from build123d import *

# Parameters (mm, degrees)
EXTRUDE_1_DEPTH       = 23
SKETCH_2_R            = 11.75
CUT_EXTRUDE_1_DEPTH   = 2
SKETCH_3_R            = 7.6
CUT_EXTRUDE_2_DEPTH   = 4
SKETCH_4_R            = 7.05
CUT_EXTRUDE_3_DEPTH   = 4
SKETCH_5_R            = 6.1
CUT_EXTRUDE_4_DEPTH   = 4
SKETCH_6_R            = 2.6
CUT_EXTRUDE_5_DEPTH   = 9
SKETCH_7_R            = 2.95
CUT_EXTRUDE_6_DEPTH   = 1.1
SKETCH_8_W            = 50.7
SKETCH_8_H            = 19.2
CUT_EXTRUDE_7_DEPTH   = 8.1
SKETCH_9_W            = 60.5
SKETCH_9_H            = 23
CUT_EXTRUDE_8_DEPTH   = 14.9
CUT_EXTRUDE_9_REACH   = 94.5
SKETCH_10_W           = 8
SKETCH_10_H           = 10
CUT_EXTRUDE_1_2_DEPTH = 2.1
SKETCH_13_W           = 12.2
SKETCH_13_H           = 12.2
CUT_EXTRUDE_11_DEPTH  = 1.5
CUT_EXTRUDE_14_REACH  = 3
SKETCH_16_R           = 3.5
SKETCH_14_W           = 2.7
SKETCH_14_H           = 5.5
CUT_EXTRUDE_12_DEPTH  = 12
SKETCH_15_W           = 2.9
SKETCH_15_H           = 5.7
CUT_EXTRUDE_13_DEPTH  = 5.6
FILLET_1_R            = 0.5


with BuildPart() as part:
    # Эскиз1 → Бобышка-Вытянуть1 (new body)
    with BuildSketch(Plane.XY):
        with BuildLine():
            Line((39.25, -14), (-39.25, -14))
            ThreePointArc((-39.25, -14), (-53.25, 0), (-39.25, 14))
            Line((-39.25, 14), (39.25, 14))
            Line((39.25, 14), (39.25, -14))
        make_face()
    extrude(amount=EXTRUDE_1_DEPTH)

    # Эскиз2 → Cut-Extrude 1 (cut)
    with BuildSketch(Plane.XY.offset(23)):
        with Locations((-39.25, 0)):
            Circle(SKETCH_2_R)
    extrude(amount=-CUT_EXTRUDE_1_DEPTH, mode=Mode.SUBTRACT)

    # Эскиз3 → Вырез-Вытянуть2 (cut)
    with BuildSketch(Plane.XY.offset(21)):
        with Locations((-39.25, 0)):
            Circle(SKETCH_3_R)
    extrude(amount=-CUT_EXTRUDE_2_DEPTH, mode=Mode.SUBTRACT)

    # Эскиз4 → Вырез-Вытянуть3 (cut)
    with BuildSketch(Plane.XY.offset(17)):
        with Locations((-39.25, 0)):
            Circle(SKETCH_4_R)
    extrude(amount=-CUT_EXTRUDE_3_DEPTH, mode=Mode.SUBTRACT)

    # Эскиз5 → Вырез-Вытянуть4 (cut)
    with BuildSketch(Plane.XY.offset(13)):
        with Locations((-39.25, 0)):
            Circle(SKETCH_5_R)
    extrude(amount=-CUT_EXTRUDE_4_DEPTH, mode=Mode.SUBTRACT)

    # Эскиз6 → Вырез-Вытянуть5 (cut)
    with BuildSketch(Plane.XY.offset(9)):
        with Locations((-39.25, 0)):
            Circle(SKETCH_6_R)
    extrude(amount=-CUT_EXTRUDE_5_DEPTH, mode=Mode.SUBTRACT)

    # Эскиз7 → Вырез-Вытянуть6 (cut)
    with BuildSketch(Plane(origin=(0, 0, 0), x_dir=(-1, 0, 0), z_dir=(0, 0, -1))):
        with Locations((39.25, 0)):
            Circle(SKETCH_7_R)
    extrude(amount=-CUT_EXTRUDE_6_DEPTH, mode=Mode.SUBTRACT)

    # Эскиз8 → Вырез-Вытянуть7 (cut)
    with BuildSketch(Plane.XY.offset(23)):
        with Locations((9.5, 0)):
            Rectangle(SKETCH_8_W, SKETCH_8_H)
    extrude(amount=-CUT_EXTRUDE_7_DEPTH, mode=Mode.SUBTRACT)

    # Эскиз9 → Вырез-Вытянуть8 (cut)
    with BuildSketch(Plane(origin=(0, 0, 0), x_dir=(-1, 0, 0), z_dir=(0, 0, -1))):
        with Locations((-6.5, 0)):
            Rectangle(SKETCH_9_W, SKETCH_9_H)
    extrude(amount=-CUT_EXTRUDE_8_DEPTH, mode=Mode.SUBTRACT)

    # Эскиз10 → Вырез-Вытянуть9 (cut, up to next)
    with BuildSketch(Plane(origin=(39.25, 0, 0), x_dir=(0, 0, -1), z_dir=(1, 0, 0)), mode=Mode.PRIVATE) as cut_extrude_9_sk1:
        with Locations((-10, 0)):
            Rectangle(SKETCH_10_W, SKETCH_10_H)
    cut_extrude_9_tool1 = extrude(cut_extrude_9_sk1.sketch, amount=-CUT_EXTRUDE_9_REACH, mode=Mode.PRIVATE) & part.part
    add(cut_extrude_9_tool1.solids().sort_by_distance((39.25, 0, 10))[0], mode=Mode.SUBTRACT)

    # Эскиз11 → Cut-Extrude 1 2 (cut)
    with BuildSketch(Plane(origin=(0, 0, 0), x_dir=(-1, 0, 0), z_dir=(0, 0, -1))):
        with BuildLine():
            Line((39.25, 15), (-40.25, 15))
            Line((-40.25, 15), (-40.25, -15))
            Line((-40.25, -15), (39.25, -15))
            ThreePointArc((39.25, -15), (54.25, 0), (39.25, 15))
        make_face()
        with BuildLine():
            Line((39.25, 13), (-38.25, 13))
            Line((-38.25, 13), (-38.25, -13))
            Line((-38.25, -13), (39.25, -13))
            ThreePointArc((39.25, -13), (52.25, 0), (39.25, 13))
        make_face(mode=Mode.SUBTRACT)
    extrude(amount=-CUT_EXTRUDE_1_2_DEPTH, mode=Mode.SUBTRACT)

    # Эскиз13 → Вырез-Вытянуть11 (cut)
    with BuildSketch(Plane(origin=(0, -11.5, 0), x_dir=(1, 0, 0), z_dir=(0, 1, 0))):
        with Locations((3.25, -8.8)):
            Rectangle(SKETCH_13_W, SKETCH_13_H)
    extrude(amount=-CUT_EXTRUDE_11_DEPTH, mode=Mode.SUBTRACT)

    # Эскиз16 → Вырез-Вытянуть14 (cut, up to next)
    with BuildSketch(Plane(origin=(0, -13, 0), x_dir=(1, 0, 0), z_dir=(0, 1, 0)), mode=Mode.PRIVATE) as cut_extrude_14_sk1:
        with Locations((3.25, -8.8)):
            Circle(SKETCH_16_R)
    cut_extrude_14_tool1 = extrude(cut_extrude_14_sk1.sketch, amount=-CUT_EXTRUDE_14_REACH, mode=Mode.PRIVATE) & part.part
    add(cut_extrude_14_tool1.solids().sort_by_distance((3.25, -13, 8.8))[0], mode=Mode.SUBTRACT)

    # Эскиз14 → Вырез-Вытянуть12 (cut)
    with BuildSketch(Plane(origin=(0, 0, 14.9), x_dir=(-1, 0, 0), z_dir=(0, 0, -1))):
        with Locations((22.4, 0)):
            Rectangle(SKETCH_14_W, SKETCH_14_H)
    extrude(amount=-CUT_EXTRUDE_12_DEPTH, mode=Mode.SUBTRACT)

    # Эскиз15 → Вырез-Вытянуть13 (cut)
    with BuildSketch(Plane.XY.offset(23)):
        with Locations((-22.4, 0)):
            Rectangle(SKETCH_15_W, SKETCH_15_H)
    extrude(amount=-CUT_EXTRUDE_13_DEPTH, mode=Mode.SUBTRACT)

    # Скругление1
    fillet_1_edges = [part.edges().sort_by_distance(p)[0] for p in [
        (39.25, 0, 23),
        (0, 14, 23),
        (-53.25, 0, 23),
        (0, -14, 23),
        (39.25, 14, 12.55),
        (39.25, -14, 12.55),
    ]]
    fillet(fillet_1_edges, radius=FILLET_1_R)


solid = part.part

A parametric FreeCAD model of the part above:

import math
import FreeCAD as App
import Part
import Sketcher
Q = App.Units.Quantity


def edges_at(feature, points):
    """Names of the edges that pass closest to the given points."""
    edges = feature.Shape.Edges
    near = lambda p: min(range(len(edges)), key=lambda i: edges[i].distToShape(Part.Vertex(*p))[0])
    return sorted({f"Edge{near(p) + 1}" for p in points})


def add_polygon(sketch, points):
    """Adds a closed chain of lines whose ends are joined by coincident constraints."""
    first, n = sketch.GeometryCount, len(points)
    for a, b in zip(points, points[1:] + points[:1]):
        sketch.addGeometry(Part.LineSegment(App.Vector(*a, 0), App.Vector(*b, 0)), False)
    for i in range(n):
        sketch.addConstraint(Sketcher.Constraint("Coincident", first + i, 2, first + (i + 1) % n, 1))

doc = App.newDocument("Part")
params = doc.addObject("Spreadsheet::Sheet", "Params")
for row, (alias, value) in enumerate([
    ("sketch1_radius", "14 mm"),
    ("sketch1_width", "78.5 mm"),
    ("pad1_length", "23 mm"),
    ("sketch2_diameter", "23.5 mm"),
    ("pocket1_length", "2 mm"),
    ("sketch3_diameter", "15.2 mm"),
    ("pocket2_length", "4 mm"),
    ("sketch4_diameter", "14.1 mm"),
    ("pocket3_length", "4 mm"),
    ("sketch5_diameter", "12.2 mm"),
    ("pocket4_length", "4 mm"),
    ("sketch6_diameter", "5.2 mm"),
    ("pocket5_length", "9 mm"),
    ("sketch7_diameter", "5.9 mm"),
    ("pocket6_length", "1.1 mm"),
    ("sketch8_width", "50.7 mm"),
    ("sketch8_height", "19.2 mm"),
    ("pocket7_length", "8.1 mm"),
    ("sketch9_height", "23 mm"),
    ("sketch9_width", "60.5 mm"),
    ("pocket8_length", "14.9 mm"),
    ("sketch10_width", "10 mm"),
    ("sketch10_height", "8 mm"),
    ("sketch11_radius", "15 mm"),
    ("sketch11_radius2", "13 mm"),
    ("sketch11_width", "79.5 mm"),
    ("sketch11_width2", "77.5 mm"),
    ("pocket10_length", "2.1 mm"),
    ("sketch12_width", "12.2 mm"),
    ("pocket11_length", "1.5 mm"),
    ("sketch13_diameter", "7 mm"),
    ("sketch14_width", "2.7 mm"),
    ("sketch14_height", "5.5 mm"),
    ("pocket13_length", "12 mm"),
    ("sketch15_width", "2.9 mm"),
    ("sketch15_height", "5.7 mm"),
    ("pocket14_length", "5.6 mm"),
    ("fillet_radius", "0.5 mm"),
], start=1):
    params.set(f"A{row}", alias)
    params.set(f"B{row}", "=" + value)
    params.setAlias(f"B{row}", alias)

body = doc.addObject("PartDesign::Body", "Body")

# Sketch on XY plane
sketch1 = body.newObject("Sketcher::SketchObject", "Sketch")
sketch1.AttachmentSupport = (doc.getObject("XY_Plane"), [""])
sketch1.MapMode = "FlatFace"
sketch1.addGeometry([
    Part.LineSegment(App.Vector(-39, -14, 0), App.Vector(39, -14, 0)),
    Part.LineSegment(App.Vector(39, -14, 0), App.Vector(39, 14, 0)),
    Part.LineSegment(App.Vector(39, 14, 0), App.Vector(-39, 14, 0)),
    Part.ArcOfCircle(Part.Circle(App.Vector(-39, 0, 0), App.Vector(0, 0, 1), 14), math.radians(90), math.radians(270)),
], False)
sketch1.addConstraint([
    Sketcher.Constraint("Coincident", 0, 2, 1, 1),
    Sketcher.Constraint("Coincident", 1, 2, 2, 1),
    Sketcher.Constraint("Tangent", 2, 2, 3, 1),
    Sketcher.Constraint("Tangent", 3, 2, 0, 1),
    Sketcher.Constraint("Horizontal", 0),
    Sketcher.Constraint("Vertical", 1),
    Sketcher.Constraint("Horizontal", 2),
    Sketcher.Constraint("Symmetric", 0, 2, 2, 2, -1, 1),
    Sketcher.Constraint("Radius", 3, Q("14 mm")),
    Sketcher.Constraint("DistanceX", 0, 1, 0, 2, Q("78.5 mm")),
])
sketch1.setExpression("Constraints[8]", "Params.sketch1_radius")
sketch1.setExpression("Constraints[9]", "Params.sketch1_width")
pad1 = body.newObject("PartDesign::Pad", "Pad")
pad1.Profile = sketch1
pad1.setExpression("Length", "Params.pad1_length")

# Sketch on XY plane
sketch2 = body.newObject("Sketcher::SketchObject", "Sketch001")
sketch2.AttachmentSupport = (doc.getObject("XY_Plane"), [""])
sketch2.MapMode = "FlatFace"
sketch2.AttachmentOffset = App.Placement(App.Vector(0, 0, 23), App.Rotation())
sketch2.addGeometry(Part.Circle(App.Vector(-39, 0, 0), App.Vector(0, 0, 1), 12), False)
sketch2.addConstraint([
    Sketcher.Constraint("PointOnObject", 0, 3, -1),
    Sketcher.Constraint("Diameter", 0, Q("23.5 mm")),
    Sketcher.Constraint("DistanceX", 0, 3, -1, 1, Q("39.25 mm")),
])
sketch2.setExpression("Constraints[1]", "Params.sketch2_diameter")
pocket1 = body.newObject("PartDesign::Pocket", "Pocket")
pocket1.Profile = sketch2
pocket1.setExpression("Length", "Params.pocket1_length")

# Sketch on XY plane
sketch3 = body.newObject("Sketcher::SketchObject", "Sketch002")
sketch3.AttachmentSupport = (doc.getObject("XY_Plane"), [""])
sketch3.MapMode = "FlatFace"
sketch3.AttachmentOffset = App.Placement(App.Vector(0, 0, 21), App.Rotation())
sketch3.addGeometry(Part.Circle(App.Vector(-39, 0, 0), App.Vector(0, 0, 1), 8), False)
sketch3.addConstraint([
    Sketcher.Constraint("PointOnObject", 0, 3, -1),
    Sketcher.Constraint("Diameter", 0, Q("15.2 mm")),
    Sketcher.Constraint("DistanceX", 0, 3, -1, 1, Q("39.25 mm")),
])
sketch3.setExpression("Constraints[1]", "Params.sketch3_diameter")
pocket2 = body.newObject("PartDesign::Pocket", "Pocket001")
pocket2.Profile = sketch3
pocket2.setExpression("Length", "Params.pocket2_length")

# Sketch on XY plane
sketch4 = body.newObject("Sketcher::SketchObject", "Sketch003")
sketch4.AttachmentSupport = (doc.getObject("XY_Plane"), [""])
sketch4.MapMode = "FlatFace"
sketch4.AttachmentOffset = App.Placement(App.Vector(0, 0, 17), App.Rotation())
sketch4.addGeometry(Part.Circle(App.Vector(-39, 0, 0), App.Vector(0, 0, 1), 7), False)
sketch4.addConstraint([
    Sketcher.Constraint("PointOnObject", 0, 3, -1),
    Sketcher.Constraint("Diameter", 0, Q("14.1 mm")),
    Sketcher.Constraint("DistanceX", 0, 3, -1, 1, Q("39.25 mm")),
])
sketch4.setExpression("Constraints[1]", "Params.sketch4_diameter")
pocket3 = body.newObject("PartDesign::Pocket", "Pocket002")
pocket3.Profile = sketch4
pocket3.setExpression("Length", "Params.pocket3_length")

# Sketch on XY plane
sketch5 = body.newObject("Sketcher::SketchObject", "Sketch004")
sketch5.AttachmentSupport = (doc.getObject("XY_Plane"), [""])
sketch5.MapMode = "FlatFace"
sketch5.AttachmentOffset = App.Placement(App.Vector(0, 0, 13), App.Rotation())
sketch5.addGeometry(Part.Circle(App.Vector(-39, 0, 0), App.Vector(0, 0, 1), 6), False)
sketch5.addConstraint([
    Sketcher.Constraint("PointOnObject", 0, 3, -1),
    Sketcher.Constraint("Diameter", 0, Q("12.2 mm")),
    Sketcher.Constraint("DistanceX", 0, 3, -1, 1, Q("39.25 mm")),
])
sketch5.setExpression("Constraints[1]", "Params.sketch5_diameter")
pocket4 = body.newObject("PartDesign::Pocket", "Pocket003")
pocket4.Profile = sketch5
pocket4.setExpression("Length", "Params.pocket4_length")

# Sketch on XY plane
sketch6 = body.newObject("Sketcher::SketchObject", "Sketch005")
sketch6.AttachmentSupport = (doc.getObject("XY_Plane"), [""])
sketch6.MapMode = "FlatFace"
sketch6.AttachmentOffset = App.Placement(App.Vector(0, 0, 9), App.Rotation())
sketch6.addGeometry(Part.Circle(App.Vector(-39.2, 0, 0), App.Vector(0, 0, 1), 2.6), False)
sketch6.addConstraint([
    Sketcher.Constraint("PointOnObject", 0, 3, -1),
    Sketcher.Constraint("Diameter", 0, Q("5.2 mm")),
    Sketcher.Constraint("DistanceX", 0, 3, -1, 1, Q("39.25 mm")),
])
sketch6.setExpression("Constraints[1]", "Params.sketch6_diameter")
pocket5 = body.newObject("PartDesign::Pocket", "Pocket004")
pocket5.Profile = sketch6
pocket5.setExpression("Length", "Params.pocket5_length")

# Sketch on XY plane
sketch7 = body.newObject("Sketcher::SketchObject", "Sketch006")
sketch7.AttachmentSupport = (doc.getObject("XY_Plane"), [""])
sketch7.MapMode = "FlatFace"
sketch7.addGeometry(Part.Circle(App.Vector(-39.2, 0, 0), App.Vector(0, 0, 1), 3), False)
sketch7.addConstraint([
    Sketcher.Constraint("PointOnObject", 0, 3, -1),
    Sketcher.Constraint("Diameter", 0, Q("5.9 mm")),
    Sketcher.Constraint("DistanceX", 0, 3, -1, 1, Q("39.25 mm")),
])
sketch7.setExpression("Constraints[1]", "Params.sketch7_diameter")
pocket6 = body.newObject("PartDesign::Pocket", "Pocket005")
pocket6.Profile = sketch7
pocket6.setExpression("Length", "Params.pocket6_length")
pocket6.Reversed = True

# Sketch on XY plane
sketch8 = body.newObject("Sketcher::SketchObject", "Sketch007")
sketch8.AttachmentSupport = (doc.getObject("XY_Plane"), [""])
sketch8.MapMode = "FlatFace"
sketch8.AttachmentOffset = App.Placement(App.Vector(0, 0, 23), App.Rotation())
add_polygon(sketch8, [(-16, 10), (-16, -10), (35, -10), (35, 10)])  # lines 0-3
sketch8.addConstraint([
    Sketcher.Constraint("Vertical", 0),
    Sketcher.Constraint("Horizontal", 1),
    Sketcher.Constraint("Vertical", 2),
    Sketcher.Constraint("Horizontal", 3),
    Sketcher.Constraint("DistanceX", 1, 1, 1, 2, Q("50.7 mm")),
    Sketcher.Constraint("DistanceY", 0, 2, 0, 1, Q("19.2 mm")),
    Sketcher.Constraint("DistanceY", 0, 2, -1, 1, Q("9.6 mm")),
    Sketcher.Constraint("DistanceX", 0, 2, -1, 1, Q("15.85 mm")),
])
sketch8.setExpression("Constraints[8]", "Params.sketch8_width")
sketch8.setExpression("Constraints[9]", "Params.sketch8_height")
pocket7 = body.newObject("PartDesign::Pocket", "Pocket006")
pocket7.Profile = sketch8
pocket7.setExpression("Length", "Params.pocket7_length")

# Sketch on XY plane
sketch9 = body.newObject("Sketcher::SketchObject", "Sketch008")
sketch9.AttachmentSupport = (doc.getObject("XY_Plane"), [""])
sketch9.MapMode = "FlatFace"
add_polygon(sketch9, [(37, 12), (37, -12), (-24, -12), (-24, 12)])  # lines 0-3
sketch9.addConstraint([
    Sketcher.Constraint("Vertical", 0),
    Sketcher.Constraint("Horizontal", 1),
    Sketcher.Constraint("Vertical", 2),
    Sketcher.Constraint("Horizontal", 3),
    Sketcher.Constraint("DistanceY", 0, 2, 0, 1, Q("23 mm")),
    Sketcher.Constraint("DistanceX", 1, 2, 1, 1, Q("60.5 mm")),
    Sketcher.Constraint("DistanceY", 0, 2, -1, 1, Q("11.5 mm")),
    Sketcher.Constraint("DistanceX", -1, 1, 0, 2, Q("36.75 mm")),
])
sketch9.setExpression("Constraints[8]", "Params.sketch9_height")
sketch9.setExpression("Constraints[9]", "Params.sketch9_width")
pocket8 = body.newObject("PartDesign::Pocket", "Pocket007")
pocket8.Profile = sketch9
pocket8.setExpression("Length", "Params.pocket8_length")
pocket8.Reversed = True

# Sketch on YZ plane
sketch10 = body.newObject("Sketcher::SketchObject", "Sketch009")
sketch10.AttachmentSupport = (doc.getObject("YZ_Plane"), [""])
sketch10.MapMode = "FlatFace"
sketch10.AttachmentOffset = App.Placement(App.Vector(0, 0, 39.25), App.Rotation())
add_polygon(sketch10, [(5, 14), (-5, 14), (-5, 6), (5, 6)])  # lines 0-3
sketch10.addConstraint([
    Sketcher.Constraint("Horizontal", 0),
    Sketcher.Constraint("Vertical", 1),
    Sketcher.Constraint("Horizontal", 2),
    Sketcher.Constraint("Vertical", 3),
    Sketcher.Constraint("DistanceX", 0, 2, 0, 1, Q("10 mm")),
    Sketcher.Constraint("DistanceY", 1, 2, 1, 1, Q("8 mm")),
    Sketcher.Constraint("DistanceX", 0, 2, -1, 1, Q("5 mm")),
    Sketcher.Constraint("DistanceY", -1, 1, 0, 2, Q("14 mm")),
])
sketch10.setExpression("Constraints[8]", "Params.sketch10_width")
sketch10.setExpression("Constraints[9]", "Params.sketch10_height")
pocket9 = body.newObject("PartDesign::Pocket", "Pocket008")
pocket9.Profile = sketch10
pocket9.Type = "UpToFirst"

# Sketch on XY plane
sketch11 = body.newObject("Sketcher::SketchObject", "Sketch010")
sketch11.AttachmentSupport = (doc.getObject("XY_Plane"), [""])
sketch11.MapMode = "FlatFace"
sketch11.addGeometry([
    Part.LineSegment(App.Vector(-39, 15, 0), App.Vector(40, 15, 0)),  # 0
    Part.LineSegment(App.Vector(40, 15, 0), App.Vector(40, -15, 0)),  # 1
    Part.LineSegment(App.Vector(40, -15, 0), App.Vector(-39, -15, 0)),  # 2
    Part.ArcOfCircle(Part.Circle(App.Vector(-39, 0, 0), App.Vector(0, 0, 1), 15), math.radians(90), math.radians(270)),  # 3
    Part.LineSegment(App.Vector(38, 13, 0), App.Vector(-39, 13, 0)),  # 4
    Part.ArcOfCircle(Part.Circle(App.Vector(-39, 0, 0), App.Vector(0, 0, 1), 13), math.radians(90), math.radians(270)),  # 5
    Part.LineSegment(App.Vector(-39, -13, 0), App.Vector(38, -13, 0)),  # 6
    Part.LineSegment(App.Vector(38, -13, 0), App.Vector(38, 13, 0)),  # 7
], False)
sketch11.addConstraint([
    Sketcher.Constraint("Coincident", 0, 2, 1, 1),
    Sketcher.Constraint("Coincident", 1, 2, 2, 1),
    Sketcher.Constraint("Tangent", 2, 2, 3, 2),
    Sketcher.Constraint("Tangent", 3, 1, 0, 1),
    Sketcher.Constraint("Tangent", 4, 2, 5, 1),
    Sketcher.Constraint("Tangent", 5, 2, 6, 1),
    Sketcher.Constraint("Coincident", 6, 2, 7, 1),
    Sketcher.Constraint("Coincident", 7, 2, 4, 1),
    Sketcher.Constraint("Horizontal", 0),
    Sketcher.Constraint("Vertical", 1),
    Sketcher.Constraint("Horizontal", 2),
    Sketcher.Constraint("Horizontal", 4),
    Sketcher.Constraint("Horizontal", 6),
    Sketcher.Constraint("Vertical", 7),
    Sketcher.Constraint("Coincident", 5, 3, 3, 3),
    Sketcher.Constraint("PointOnObject", 3, 3, -1),
    Sketcher.Constraint("Radius", 3, Q("15 mm")),
    Sketcher.Constraint("Radius", 5, Q("13 mm")),
    Sketcher.Constraint("DistanceX", 0, 1, 0, 2, Q("79.5 mm")),
    Sketcher.Constraint("DistanceX", 4, 2, 4, 1, Q("77.5 mm")),
    Sketcher.Constraint("DistanceX", 3, 3, -1, 1, Q("39.25 mm")),
])
sketch11.setExpression("Constraints[16]", "Params.sketch11_radius")
sketch11.setExpression("Constraints[17]", "Params.sketch11_radius2")
sketch11.setExpression("Constraints[18]", "Params.sketch11_width")
sketch11.setExpression("Constraints[19]", "Params.sketch11_width2")
pocket10 = body.newObject("PartDesign::Pocket", "Pocket009")
pocket10.Profile = sketch11
pocket10.setExpression("Length", "Params.pocket10_length")
pocket10.Reversed = True

# Sketch on XZ plane
sketch12 = body.newObject("Sketcher::SketchObject", "Sketch011")
sketch12.AttachmentSupport = (doc.getObject("XZ_Plane"), [""])
sketch12.MapMode = "FlatFace"
sketch12.AttachmentOffset = App.Placement(App.Vector(0, 0, 11.5), App.Rotation())
add_polygon(sketch12, [(-3, 3), (-3, 15), (9, 15), (9, 3)])  # lines 0-3
sketch12.addConstraint([
    Sketcher.Constraint("Vertical", 0),
    Sketcher.Constraint("Horizontal", 1),
    Sketcher.Constraint("Vertical", 2),
    Sketcher.Constraint("Horizontal", 3),
    Sketcher.Constraint("Equal", 3, 0),
    Sketcher.Constraint("DistanceX", 1, 1, 1, 2, Q("12.2 mm")),
    Sketcher.Constraint("DistanceY", -1, 1, 0, 2, Q("14.9 mm")),
    Sketcher.Constraint("DistanceX", 0, 2, -1, 1, Q("2.85 mm")),
])
sketch12.setExpression("Constraints[9]", "Params.sketch12_width")
pocket11 = body.newObject("PartDesign::Pocket", "Pocket010")
pocket11.Profile = sketch12
pocket11.setExpression("Length", "Params.pocket11_length")
pocket11.Reversed = True

# Sketch on XZ plane
sketch13 = body.newObject("Sketcher::SketchObject", "Sketch012")
sketch13.AttachmentSupport = (doc.getObject("XZ_Plane"), [""])
sketch13.MapMode = "FlatFace"
sketch13.AttachmentOffset = App.Placement(App.Vector(0, 0, 13), App.Rotation())
sketch13.addGeometry(Part.Circle(App.Vector(3.2, 8.8, 0), App.Vector(0, 0, 1), 3.5), False)
sketch13.addConstraint([
    Sketcher.Constraint("Diameter", 0, Q("7 mm")),
    Sketcher.Constraint("DistanceY", -1, 1, 0, 3, Q("8.8 mm")),
    Sketcher.Constraint("DistanceX", -1, 1, 0, 3, Q("3.25 mm")),
])
sketch13.setExpression("Constraints[0]", "Params.sketch13_diameter")
pocket12 = body.newObject("PartDesign::Pocket", "Pocket011")
pocket12.Profile = sketch13
pocket12.Type = "UpToFirst"
pocket12.Reversed = True

# Sketch on XY plane
sketch14 = body.newObject("Sketcher::SketchObject", "Sketch013")
sketch14.AttachmentSupport = (doc.getObject("XY_Plane"), [""])
sketch14.MapMode = "FlatFace"
sketch14.AttachmentOffset = App.Placement(App.Vector(0, 0, 14.9), App.Rotation())
add_polygon(sketch14, [(-21.1, 2.8), (-21.1, -2.8), (-23.8, -2.8), (-23.8, 2.8)])  # lines 0-3
sketch14.addConstraint([
    Sketcher.Constraint("Vertical", 0),
    Sketcher.Constraint("Horizontal", 1),
    Sketcher.Constraint("Vertical", 2),
    Sketcher.Constraint("Horizontal", 3),
    Sketcher.Constraint("DistanceX", 1, 2, 1, 1, Q("2.7 mm")),
    Sketcher.Constraint("DistanceY", 0, 2, 0, 1, Q("5.5 mm")),
    Sketcher.Constraint("DistanceX", 0, 2, -1, 1, Q("21.05 mm")),
    Sketcher.Constraint("DistanceY", 0, 2, -1, 1, Q("2.75 mm")),
])
sketch14.setExpression("Constraints[8]", "Params.sketch14_width")
sketch14.setExpression("Constraints[9]", "Params.sketch14_height")
pocket13 = body.newObject("PartDesign::Pocket", "Pocket012")
pocket13.Profile = sketch14
pocket13.setExpression("Length", "Params.pocket13_length")
pocket13.Reversed = True

# Sketch on XY plane
sketch15 = body.newObject("Sketcher::SketchObject", "Sketch014")
sketch15.AttachmentSupport = (doc.getObject("XY_Plane"), [""])
sketch15.MapMode = "FlatFace"
sketch15.AttachmentOffset = App.Placement(App.Vector(0, 0, 23), App.Rotation())
add_polygon(sketch15, [(-23.9, 2.9), (-23.9, -2.9), (-20.9, -2.9), (-20.9, 2.9)])  # lines 0-3
sketch15.addConstraint([
    Sketcher.Constraint("Vertical", 0),
    Sketcher.Constraint("Horizontal", 1),
    Sketcher.Constraint("Vertical", 2),
    Sketcher.Constraint("Horizontal", 3),
    Sketcher.Constraint("DistanceX", 1, 1, 1, 2, Q("2.9 mm")),
    Sketcher.Constraint("DistanceY", 0, 2, 0, 1, Q("5.7 mm")),
    Sketcher.Constraint("DistanceX", 0, 2, -1, 1, Q("23.85 mm")),
    Sketcher.Constraint("DistanceY", 0, 2, -1, 1, Q("2.85 mm")),
])
sketch15.setExpression("Constraints[8]", "Params.sketch15_width")
sketch15.setExpression("Constraints[9]", "Params.sketch15_height")
pocket14 = body.newObject("PartDesign::Pocket", "Pocket013")
pocket14.Profile = sketch15
pocket14.setExpression("Length", "Params.pocket14_length")
doc.recompute()

fillet = body.newObject("PartDesign::Fillet", "Fillet")
fillet.Base = (pocket14, edges_at(pocket14, [
    (39.25, 0, 23),
    (0, 14, 23),
    (-53.25, 0, 23),
    (0, -14, 23),
    (39.25, 14, 12.55),
    (39.25, -14, 12.55),
]))
fillet.setExpression("Radius", "Params.fillet_radius")

doc.recompute()
